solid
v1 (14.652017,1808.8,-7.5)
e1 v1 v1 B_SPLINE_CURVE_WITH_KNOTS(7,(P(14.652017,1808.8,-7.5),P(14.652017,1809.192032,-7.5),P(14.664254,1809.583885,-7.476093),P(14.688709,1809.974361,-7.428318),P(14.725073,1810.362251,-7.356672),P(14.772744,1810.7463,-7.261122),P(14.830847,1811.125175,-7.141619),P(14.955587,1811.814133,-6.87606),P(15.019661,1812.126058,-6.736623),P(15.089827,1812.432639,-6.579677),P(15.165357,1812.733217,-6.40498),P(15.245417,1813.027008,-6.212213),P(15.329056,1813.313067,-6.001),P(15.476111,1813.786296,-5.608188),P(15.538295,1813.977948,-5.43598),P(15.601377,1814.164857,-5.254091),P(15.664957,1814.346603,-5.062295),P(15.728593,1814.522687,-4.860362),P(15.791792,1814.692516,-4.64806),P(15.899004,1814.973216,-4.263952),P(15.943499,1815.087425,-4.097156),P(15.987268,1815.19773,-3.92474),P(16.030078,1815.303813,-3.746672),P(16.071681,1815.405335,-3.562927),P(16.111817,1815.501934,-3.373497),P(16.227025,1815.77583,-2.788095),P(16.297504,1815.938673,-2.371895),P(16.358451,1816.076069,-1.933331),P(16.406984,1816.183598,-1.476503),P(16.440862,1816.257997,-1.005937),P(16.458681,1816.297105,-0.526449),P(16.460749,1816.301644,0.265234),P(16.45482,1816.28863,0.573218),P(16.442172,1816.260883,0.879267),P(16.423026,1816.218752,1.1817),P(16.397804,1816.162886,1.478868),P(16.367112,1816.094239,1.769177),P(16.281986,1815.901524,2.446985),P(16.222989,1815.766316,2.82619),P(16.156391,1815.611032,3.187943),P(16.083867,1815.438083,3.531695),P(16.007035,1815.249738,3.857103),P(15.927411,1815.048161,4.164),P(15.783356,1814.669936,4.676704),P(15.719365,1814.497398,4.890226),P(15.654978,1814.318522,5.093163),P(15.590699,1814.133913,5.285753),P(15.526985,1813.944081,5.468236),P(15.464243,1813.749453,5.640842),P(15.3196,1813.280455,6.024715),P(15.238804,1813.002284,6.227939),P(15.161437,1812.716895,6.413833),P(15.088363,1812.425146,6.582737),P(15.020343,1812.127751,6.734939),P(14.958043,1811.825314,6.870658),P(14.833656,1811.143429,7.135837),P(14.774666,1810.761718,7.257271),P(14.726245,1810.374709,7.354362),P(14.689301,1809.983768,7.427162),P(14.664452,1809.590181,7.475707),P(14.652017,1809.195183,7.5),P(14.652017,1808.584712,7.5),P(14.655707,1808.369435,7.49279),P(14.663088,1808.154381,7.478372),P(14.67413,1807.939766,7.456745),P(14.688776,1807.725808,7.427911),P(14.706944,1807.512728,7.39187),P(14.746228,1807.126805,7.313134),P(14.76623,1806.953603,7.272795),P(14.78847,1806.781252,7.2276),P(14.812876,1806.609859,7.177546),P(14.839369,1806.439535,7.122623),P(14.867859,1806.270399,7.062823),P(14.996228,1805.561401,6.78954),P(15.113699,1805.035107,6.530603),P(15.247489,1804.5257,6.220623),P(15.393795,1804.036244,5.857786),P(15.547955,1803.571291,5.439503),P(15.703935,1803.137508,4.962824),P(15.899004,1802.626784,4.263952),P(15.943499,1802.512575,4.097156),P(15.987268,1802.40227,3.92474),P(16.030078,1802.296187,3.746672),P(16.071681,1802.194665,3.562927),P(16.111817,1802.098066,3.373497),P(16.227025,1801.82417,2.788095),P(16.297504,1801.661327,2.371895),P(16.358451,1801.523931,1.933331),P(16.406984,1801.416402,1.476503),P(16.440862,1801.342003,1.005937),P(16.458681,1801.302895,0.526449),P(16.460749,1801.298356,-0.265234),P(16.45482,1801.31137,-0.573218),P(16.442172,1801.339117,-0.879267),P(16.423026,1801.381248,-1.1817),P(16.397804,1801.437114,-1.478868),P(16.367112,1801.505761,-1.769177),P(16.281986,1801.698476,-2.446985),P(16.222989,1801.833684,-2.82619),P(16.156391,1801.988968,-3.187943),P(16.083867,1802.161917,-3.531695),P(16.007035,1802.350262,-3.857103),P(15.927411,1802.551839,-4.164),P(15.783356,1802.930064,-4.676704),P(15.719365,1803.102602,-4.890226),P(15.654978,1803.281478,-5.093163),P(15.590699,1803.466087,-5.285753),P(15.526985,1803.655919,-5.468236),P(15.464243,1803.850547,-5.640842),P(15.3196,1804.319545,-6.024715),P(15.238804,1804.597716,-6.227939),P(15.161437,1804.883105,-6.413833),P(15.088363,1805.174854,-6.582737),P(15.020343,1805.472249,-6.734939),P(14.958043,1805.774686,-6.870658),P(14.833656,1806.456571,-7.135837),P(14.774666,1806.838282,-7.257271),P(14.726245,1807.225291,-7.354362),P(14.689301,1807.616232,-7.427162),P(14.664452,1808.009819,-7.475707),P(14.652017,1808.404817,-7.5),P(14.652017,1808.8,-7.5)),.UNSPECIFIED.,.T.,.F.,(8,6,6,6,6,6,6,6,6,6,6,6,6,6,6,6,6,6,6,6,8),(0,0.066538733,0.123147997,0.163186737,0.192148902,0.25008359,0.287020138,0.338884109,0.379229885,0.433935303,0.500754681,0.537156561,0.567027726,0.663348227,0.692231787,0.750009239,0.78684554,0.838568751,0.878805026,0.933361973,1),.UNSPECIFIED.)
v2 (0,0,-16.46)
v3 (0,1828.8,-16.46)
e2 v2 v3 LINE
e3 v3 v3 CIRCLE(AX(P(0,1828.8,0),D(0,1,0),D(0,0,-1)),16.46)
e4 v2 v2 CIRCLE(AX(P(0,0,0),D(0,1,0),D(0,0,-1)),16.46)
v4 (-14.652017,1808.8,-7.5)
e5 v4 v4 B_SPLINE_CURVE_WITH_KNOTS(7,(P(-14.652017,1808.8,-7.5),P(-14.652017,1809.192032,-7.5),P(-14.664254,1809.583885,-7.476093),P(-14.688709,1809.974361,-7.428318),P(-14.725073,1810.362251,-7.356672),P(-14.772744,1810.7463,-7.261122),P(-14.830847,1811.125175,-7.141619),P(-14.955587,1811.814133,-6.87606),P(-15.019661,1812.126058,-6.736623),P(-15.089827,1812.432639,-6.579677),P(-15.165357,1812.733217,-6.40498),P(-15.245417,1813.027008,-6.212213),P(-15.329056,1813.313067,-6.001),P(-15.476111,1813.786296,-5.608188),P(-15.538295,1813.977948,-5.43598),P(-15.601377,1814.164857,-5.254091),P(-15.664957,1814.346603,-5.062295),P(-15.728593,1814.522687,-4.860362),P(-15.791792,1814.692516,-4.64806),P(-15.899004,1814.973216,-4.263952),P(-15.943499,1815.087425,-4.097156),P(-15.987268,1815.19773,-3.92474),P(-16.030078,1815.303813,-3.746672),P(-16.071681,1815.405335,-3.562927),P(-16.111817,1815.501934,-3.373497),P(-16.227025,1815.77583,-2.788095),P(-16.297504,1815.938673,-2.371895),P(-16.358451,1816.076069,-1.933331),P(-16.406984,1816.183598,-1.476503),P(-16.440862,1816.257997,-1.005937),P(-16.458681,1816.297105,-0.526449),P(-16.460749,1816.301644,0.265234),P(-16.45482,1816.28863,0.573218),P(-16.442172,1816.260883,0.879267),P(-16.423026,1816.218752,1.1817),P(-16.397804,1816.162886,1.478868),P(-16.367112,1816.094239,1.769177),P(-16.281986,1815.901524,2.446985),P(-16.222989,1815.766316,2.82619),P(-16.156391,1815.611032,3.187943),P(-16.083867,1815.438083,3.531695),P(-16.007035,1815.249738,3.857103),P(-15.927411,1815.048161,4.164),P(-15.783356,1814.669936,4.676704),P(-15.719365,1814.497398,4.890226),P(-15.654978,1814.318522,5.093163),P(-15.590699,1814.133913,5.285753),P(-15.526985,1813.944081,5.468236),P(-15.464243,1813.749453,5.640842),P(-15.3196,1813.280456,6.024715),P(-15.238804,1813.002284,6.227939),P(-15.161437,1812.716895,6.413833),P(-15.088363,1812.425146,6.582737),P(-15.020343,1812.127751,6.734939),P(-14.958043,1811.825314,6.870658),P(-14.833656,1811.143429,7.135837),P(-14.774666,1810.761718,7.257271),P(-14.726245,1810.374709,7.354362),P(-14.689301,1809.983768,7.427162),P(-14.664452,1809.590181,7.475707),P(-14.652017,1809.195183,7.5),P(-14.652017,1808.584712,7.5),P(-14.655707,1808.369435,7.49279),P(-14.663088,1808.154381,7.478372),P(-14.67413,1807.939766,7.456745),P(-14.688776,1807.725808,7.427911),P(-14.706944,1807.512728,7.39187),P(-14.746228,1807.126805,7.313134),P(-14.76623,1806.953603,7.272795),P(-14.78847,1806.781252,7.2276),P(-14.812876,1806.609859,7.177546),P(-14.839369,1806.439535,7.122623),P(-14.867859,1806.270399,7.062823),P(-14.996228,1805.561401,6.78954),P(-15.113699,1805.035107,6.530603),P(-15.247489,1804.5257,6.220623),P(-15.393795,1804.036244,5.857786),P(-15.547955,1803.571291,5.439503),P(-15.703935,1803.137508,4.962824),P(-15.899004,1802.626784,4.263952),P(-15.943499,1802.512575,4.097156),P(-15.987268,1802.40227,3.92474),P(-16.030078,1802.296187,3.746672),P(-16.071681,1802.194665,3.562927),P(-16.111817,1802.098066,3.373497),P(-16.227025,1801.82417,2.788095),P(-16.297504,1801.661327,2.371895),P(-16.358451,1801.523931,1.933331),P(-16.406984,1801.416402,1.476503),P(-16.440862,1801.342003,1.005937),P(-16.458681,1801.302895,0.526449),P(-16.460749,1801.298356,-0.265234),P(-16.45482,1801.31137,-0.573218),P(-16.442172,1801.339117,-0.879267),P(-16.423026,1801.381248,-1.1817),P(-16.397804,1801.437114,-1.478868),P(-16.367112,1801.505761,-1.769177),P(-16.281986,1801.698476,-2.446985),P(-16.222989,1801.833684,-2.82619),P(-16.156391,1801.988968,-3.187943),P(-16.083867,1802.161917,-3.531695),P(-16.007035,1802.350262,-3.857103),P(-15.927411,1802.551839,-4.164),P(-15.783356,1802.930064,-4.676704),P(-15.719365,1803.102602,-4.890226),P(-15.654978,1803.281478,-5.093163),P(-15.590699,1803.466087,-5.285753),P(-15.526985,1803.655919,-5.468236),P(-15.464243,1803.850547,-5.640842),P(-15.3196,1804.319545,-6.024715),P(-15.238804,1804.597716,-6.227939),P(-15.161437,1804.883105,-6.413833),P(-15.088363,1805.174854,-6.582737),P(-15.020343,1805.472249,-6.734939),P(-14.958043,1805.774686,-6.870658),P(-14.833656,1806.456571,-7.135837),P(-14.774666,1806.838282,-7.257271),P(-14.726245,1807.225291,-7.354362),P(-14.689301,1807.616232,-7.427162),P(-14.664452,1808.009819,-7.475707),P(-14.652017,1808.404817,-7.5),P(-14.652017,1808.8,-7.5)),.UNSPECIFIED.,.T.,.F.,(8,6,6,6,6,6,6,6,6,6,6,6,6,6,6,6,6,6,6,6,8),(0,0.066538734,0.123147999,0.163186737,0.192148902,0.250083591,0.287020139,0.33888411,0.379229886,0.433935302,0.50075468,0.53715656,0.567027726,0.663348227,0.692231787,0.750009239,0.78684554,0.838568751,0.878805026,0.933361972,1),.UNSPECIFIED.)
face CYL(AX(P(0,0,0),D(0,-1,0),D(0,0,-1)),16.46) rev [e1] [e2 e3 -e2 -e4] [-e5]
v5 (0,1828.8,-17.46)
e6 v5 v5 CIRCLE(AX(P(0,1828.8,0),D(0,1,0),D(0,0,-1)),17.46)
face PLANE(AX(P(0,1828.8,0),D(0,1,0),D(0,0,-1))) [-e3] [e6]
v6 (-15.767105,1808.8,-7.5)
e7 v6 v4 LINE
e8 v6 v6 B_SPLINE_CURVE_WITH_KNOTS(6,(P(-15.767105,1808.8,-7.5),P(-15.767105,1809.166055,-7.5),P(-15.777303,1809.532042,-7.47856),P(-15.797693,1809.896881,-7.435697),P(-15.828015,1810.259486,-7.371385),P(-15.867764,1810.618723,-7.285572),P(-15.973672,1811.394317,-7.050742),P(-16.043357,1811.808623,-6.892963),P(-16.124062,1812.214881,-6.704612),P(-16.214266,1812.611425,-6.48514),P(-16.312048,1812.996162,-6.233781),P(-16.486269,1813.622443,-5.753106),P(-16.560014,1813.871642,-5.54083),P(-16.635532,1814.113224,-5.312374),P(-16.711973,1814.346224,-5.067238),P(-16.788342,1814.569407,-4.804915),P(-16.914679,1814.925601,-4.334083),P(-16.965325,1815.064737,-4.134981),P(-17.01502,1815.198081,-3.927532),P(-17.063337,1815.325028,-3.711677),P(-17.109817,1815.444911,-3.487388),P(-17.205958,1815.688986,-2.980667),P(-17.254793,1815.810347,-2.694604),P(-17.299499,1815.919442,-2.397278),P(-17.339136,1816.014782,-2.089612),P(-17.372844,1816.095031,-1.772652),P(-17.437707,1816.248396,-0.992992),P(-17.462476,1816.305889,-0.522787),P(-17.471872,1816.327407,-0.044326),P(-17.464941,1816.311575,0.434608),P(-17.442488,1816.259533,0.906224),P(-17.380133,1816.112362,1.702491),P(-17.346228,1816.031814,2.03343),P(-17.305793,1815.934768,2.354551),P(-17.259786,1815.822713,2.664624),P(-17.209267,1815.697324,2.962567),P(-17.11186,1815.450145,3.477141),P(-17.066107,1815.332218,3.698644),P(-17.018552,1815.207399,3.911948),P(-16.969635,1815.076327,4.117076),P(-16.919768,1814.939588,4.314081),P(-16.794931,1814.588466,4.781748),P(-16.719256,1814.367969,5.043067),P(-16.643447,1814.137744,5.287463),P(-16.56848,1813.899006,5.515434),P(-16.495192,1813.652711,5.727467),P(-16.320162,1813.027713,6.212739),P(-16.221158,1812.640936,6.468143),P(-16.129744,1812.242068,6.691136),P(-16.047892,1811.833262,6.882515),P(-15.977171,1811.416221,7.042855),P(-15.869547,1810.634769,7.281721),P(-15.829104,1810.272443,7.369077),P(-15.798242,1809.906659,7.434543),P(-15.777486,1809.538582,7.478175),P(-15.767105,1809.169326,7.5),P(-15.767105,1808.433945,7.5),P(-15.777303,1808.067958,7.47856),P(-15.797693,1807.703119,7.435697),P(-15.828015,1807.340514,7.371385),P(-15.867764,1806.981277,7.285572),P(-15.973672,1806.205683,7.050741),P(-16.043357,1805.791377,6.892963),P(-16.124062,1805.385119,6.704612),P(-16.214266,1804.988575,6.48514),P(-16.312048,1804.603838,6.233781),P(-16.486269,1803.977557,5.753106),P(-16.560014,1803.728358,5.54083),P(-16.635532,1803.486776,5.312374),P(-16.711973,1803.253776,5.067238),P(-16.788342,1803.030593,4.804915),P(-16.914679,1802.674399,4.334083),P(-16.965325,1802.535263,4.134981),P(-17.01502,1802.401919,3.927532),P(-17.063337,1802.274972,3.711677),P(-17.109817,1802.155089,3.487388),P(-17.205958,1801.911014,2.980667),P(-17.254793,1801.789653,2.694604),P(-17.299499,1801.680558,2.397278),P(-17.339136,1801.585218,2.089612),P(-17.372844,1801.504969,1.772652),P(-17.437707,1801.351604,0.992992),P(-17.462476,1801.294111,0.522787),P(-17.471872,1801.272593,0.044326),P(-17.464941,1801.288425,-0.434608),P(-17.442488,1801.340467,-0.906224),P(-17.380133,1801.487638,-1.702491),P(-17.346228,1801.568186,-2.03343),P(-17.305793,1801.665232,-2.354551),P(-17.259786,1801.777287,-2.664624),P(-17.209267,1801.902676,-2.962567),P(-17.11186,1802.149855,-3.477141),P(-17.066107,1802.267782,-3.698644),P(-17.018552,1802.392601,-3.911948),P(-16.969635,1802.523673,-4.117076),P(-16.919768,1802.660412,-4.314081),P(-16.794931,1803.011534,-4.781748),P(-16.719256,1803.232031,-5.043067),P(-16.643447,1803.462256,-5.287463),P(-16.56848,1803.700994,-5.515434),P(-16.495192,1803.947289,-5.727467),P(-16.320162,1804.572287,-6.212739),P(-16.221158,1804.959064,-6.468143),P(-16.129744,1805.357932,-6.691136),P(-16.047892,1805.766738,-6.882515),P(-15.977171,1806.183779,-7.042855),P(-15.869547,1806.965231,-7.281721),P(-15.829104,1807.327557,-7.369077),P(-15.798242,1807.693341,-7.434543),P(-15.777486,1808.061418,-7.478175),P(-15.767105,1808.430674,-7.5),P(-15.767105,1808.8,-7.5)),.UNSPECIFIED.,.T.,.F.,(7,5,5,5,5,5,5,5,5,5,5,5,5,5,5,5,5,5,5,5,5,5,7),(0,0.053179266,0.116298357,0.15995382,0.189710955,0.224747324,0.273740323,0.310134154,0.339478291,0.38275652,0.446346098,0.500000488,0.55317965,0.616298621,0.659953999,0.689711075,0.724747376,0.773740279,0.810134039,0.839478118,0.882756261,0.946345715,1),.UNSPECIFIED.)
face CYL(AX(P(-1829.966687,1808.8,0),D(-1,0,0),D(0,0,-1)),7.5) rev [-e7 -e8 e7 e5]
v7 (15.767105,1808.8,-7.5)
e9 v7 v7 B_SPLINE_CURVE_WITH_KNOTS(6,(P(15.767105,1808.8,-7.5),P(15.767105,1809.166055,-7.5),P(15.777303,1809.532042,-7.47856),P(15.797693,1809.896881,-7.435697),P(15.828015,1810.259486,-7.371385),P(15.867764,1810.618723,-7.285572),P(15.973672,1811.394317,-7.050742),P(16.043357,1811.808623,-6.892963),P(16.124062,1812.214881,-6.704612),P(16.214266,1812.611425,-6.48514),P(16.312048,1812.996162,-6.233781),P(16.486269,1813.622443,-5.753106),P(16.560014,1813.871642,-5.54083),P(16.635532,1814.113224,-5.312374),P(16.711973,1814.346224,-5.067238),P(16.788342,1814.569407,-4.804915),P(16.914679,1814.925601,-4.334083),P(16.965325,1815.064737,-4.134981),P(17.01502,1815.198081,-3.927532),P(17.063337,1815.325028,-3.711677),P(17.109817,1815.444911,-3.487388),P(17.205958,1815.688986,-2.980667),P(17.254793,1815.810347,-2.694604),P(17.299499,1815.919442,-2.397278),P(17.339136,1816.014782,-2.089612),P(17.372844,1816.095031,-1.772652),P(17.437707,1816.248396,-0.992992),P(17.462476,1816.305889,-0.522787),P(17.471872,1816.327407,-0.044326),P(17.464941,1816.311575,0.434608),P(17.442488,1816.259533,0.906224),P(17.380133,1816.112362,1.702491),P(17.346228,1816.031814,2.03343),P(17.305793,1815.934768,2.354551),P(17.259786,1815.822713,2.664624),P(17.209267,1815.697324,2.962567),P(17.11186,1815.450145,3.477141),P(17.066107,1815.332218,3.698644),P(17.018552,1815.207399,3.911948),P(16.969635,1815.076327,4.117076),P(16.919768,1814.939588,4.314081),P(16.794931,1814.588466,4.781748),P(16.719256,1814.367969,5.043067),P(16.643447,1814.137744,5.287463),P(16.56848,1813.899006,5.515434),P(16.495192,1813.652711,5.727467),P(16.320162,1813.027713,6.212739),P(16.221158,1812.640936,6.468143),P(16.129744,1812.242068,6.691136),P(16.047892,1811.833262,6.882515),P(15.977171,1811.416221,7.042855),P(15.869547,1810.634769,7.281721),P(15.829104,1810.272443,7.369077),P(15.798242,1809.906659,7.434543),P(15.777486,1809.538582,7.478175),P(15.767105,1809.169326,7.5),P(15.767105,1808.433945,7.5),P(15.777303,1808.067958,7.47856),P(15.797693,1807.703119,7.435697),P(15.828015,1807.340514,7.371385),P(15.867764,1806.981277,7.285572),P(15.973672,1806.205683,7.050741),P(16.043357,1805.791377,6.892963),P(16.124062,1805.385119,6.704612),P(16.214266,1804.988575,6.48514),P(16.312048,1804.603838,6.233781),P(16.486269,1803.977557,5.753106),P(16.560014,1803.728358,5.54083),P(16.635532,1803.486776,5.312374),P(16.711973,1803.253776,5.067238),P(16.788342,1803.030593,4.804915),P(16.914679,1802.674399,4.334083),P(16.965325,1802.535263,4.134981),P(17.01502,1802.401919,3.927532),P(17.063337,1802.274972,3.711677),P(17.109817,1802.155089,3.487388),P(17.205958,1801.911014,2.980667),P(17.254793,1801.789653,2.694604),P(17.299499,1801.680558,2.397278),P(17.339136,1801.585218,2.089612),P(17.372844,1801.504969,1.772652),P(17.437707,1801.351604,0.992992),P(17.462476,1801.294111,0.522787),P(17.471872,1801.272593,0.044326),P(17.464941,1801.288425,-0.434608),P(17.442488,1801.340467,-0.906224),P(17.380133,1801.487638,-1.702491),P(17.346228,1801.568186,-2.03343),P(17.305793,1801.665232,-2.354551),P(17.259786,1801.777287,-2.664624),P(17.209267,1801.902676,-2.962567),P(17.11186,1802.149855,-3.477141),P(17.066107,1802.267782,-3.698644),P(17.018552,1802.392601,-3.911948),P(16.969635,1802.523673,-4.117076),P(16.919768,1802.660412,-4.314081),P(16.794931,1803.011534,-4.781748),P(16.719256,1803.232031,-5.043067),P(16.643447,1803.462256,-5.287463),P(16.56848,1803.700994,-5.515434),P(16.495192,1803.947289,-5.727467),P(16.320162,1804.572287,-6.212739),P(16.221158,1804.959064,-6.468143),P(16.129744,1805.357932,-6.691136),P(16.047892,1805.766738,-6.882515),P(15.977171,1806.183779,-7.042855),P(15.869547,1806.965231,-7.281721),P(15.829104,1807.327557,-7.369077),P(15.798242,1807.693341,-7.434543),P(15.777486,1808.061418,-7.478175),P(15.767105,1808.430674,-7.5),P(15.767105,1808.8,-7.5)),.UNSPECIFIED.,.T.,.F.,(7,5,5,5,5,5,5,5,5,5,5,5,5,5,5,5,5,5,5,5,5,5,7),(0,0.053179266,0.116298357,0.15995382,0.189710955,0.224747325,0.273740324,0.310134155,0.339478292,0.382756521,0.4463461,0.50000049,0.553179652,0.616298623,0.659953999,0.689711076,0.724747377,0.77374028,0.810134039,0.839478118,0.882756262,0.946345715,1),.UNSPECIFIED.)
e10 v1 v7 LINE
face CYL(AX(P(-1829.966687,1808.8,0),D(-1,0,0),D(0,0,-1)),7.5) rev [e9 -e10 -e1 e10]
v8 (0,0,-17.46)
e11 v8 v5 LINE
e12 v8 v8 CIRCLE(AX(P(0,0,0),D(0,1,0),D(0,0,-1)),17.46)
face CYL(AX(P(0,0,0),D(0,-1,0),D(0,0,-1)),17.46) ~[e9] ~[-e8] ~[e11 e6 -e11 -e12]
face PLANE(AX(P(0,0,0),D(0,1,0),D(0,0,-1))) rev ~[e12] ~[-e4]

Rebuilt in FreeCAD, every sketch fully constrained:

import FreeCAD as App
import Part
import Sketcher

doc = App.newDocument("Part")
params = doc.addObject("Spreadsheet::Sheet", "Params")
for row, (alias, value) in enumerate([
    ("sketch1_diameter", "34.92 mm"),
    ("sketch1_diameter2", "32.92 mm"),
    ("pad1_length", "1828.8 mm"),
    ("sketch2_diameter", "15 mm"),
], start=1):
    params.set(f"A{row}", alias)
    params.set(f"B{row}", "=" + value)
    params.setAlias(f"B{row}", alias)

body = doc.addObject("PartDesign::Body", "Body")

# Sketch on XZ plane
sketch1 = body.newObject("Sketcher::SketchObject", "Sketch")
sketch1.AttachmentSupport = (doc.getObject("XZ_Plane"), [""])
sketch1.MapMode = "FlatFace"
sketch1.addGeometry([
    Part.Circle(App.Vector(0, 0, 0), App.Vector(0, 0, 1), 17.46),
    Part.Circle(App.Vector(0, 0, 0), App.Vector(0, 0, 1), 16.46),
], False)
sketch1.addConstraint([
    Sketcher.Constraint("Coincident", 0, 3, -1, 1),
    Sketcher.Constraint("Coincident", 1, 3, -1, 1),
    Sketcher.Constraint("Diameter", 0, 34.92),
    Sketcher.Constraint("Diameter", 1, 32.92),
])
sketch1.setExpression("Constraints[2]", "Params.sketch1_diameter")
sketch1.setExpression("Constraints[3]", "Params.sketch1_diameter2")
pad1 = body.newObject("PartDesign::Pad", "Pad")
pad1.Profile = sketch1
pad1.setExpression("Length", "Params.pad1_length")
pad1.Reversed = True

# Sketch on YZ plane
sketch2 = body.newObject("Sketcher::SketchObject", "Sketch001")
sketch2.AttachmentSupport = (doc.getObject("YZ_Plane"), [""])
sketch2.MapMode = "FlatFace"
sketch2.addGeometry(Part.Circle(App.Vector(1808.8, 0, 0), App.Vector(0, 0, 1), 7.5), False)
sketch2.addConstraint([
    Sketcher.Constraint("PointOnObject", 0, 3, -1),
    Sketcher.Constraint("Diameter", 0, 15.0),
    Sketcher.Constraint("DistanceX", -1, 1, 0, 3, 1808.8),
])
sketch2.setExpression("Constraints[1]", "Params.sketch2_diameter")
pocket1 = body.newObject("PartDesign::Pocket", "Pocket")
pocket1.Profile = sketch2
pocket1.Type = "ThroughAll"
pocket1.Midplane = True

doc.recompute()
